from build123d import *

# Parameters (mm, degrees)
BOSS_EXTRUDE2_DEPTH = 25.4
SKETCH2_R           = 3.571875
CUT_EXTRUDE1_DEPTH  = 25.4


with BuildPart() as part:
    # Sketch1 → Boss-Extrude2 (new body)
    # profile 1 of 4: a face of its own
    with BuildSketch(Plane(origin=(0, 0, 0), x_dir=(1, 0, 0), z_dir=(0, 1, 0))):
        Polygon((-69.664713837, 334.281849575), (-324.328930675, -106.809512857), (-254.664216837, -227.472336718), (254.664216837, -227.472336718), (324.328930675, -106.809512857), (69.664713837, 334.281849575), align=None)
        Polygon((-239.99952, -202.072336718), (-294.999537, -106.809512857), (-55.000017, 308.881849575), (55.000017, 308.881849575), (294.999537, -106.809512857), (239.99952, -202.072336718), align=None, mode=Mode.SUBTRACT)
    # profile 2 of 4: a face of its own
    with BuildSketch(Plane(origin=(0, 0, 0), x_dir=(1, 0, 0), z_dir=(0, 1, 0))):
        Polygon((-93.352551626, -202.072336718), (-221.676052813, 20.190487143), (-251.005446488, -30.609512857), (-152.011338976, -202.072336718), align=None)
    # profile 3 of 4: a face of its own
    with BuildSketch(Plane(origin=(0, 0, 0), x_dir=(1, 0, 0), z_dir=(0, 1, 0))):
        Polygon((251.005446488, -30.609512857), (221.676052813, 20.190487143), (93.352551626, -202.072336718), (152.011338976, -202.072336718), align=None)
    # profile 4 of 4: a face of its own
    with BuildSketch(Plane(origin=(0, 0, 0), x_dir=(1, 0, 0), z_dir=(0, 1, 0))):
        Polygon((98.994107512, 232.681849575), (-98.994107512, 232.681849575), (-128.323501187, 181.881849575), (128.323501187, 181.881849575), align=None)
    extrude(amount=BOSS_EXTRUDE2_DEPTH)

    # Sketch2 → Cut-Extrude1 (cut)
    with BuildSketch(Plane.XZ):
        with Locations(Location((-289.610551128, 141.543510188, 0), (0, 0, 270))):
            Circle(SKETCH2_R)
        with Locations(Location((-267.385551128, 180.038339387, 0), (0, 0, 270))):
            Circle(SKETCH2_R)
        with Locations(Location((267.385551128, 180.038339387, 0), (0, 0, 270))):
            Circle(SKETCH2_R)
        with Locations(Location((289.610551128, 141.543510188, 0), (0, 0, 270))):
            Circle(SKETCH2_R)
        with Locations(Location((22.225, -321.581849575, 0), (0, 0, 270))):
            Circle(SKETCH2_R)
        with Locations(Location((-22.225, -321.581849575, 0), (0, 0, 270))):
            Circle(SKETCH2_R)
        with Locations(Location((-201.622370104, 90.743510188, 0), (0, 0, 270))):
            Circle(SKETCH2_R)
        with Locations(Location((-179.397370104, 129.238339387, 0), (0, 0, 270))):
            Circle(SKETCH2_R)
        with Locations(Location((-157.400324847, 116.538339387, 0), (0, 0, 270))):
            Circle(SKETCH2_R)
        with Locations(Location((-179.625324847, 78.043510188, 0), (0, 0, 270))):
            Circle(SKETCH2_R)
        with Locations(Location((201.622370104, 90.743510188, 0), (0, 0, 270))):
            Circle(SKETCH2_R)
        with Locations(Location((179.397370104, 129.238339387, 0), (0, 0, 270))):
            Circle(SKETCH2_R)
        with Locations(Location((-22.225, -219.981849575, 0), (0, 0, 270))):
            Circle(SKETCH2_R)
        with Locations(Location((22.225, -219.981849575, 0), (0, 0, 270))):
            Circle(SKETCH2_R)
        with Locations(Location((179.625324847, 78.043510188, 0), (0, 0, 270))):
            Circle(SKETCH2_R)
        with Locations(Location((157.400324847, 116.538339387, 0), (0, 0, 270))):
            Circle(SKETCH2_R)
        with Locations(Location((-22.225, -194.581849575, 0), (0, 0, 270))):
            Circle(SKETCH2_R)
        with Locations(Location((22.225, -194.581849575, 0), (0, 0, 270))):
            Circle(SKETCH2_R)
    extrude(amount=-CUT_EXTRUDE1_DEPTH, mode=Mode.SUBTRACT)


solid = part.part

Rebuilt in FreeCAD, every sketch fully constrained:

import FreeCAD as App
import Part
import Sketcher

V = App.Vector
Q = App.Units.Quantity


def add_polygon(sketch, points):
    """Adds a closed chain of lines whose ends are joined by coincident constraints."""
    first, n = sketch.GeometryCount, len(points)
    for a, b in zip(points, points[1:] + points[:1]):
        sketch.addGeometry(Part.LineSegment(App.Vector(*a, 0), App.Vector(*b, 0)), False)
    for i in range(n):
        sketch.addConstraint(Sketcher.Constraint("Coincident", first + i, 2, first + (i + 1) % n, 1))

doc = App.newDocument("Part")
body = doc.addObject("PartDesign::Body", "Body")

# Sketch on XZ plane
sketch1 = doc.addObject("Sketcher::SketchObject", "Sketch")
body.addObject(sketch1)
sketch1.AttachmentSupport = (doc.XZ_Plane, [""])
sketch1.MapMode = "FlatFace"
add_polygon(sketch1, [(-70, -334), (-324, 107), (-255, 227), (255, 227), (324, 107), (70, -334)])  # lines 0-5
add_polygon(sketch1, [(240, 202), (152, 202), (251, 31), (295, 107)])  # lines 6-9
add_polygon(sketch1, [(93, 202), (-93, 202), (-222, -20), (-128, -182), (128, -182), (222, -20)])  # lines 10-15
add_polygon(sketch1, [(-152, 202), (-240, 202), (-295, 107), (-251, 31)])  # lines 16-19
add_polygon(sketch1, [(55, -309), (99, -233), (-99, -233), (-55, -309)])  # lines 20-23
sketch1.addConstraint([
    Sketcher.Constraint("Horizontal", 2),
    Sketcher.Constraint("Horizontal", 5),
    Sketcher.Constraint("Horizontal", 6),
    Sketcher.Constraint("Horizontal", 10),
    Sketcher.Constraint("Horizontal", 13),
    Sketcher.Constraint("Horizontal", 16),
    Sketcher.Constraint("Horizontal", 21),
    Sketcher.Constraint("Horizontal", 23),
    Sketcher.Constraint("Symmetric", 0, 2, 3, 2, -2),
    Sketcher.Constraint("Symmetric", 11, 2, 14, 2, -2),
    Sketcher.Constraint("Symmetric", 9, 2, 16, 2, -2),
    Sketcher.Constraint("Symmetric", 8, 2, 17, 2, -2),
    Sketcher.Constraint("Symmetric", 7, 2, 18, 2, -2),
    Sketcher.Constraint("Parallel", 0, 3),
    Sketcher.Constraint("Parallel", 1, 4),
    Sketcher.Constraint("Parallel", 3, 7),
    Sketcher.Constraint("Parallel", 4, 8),
    Sketcher.Constraint("Parallel", 7, 9),
    Sketcher.Constraint("Parallel", 8, 11),
    Sketcher.Constraint("Parallel", 9, 12),
    Sketcher.Constraint("Parallel", 11, 14),
    Sketcher.Constraint("Parallel", 12, 15),
    Sketcher.Constraint("Parallel", 14, 17),
    Sketcher.Constraint("Parallel", 17, 19),
    Sketcher.Constraint("Parallel", 19, 20),
    Sketcher.Constraint("Parallel", 18, 22),
    Sketcher.Constraint("Horizontal", 3, 2, 8, 2),
    Sketcher.Constraint("Horizontal", 9, 2, 10, 2),
    Sketcher.Constraint("Equal", 18, 20),
    Sketcher.Constraint("Angle", 0, Q("120 deg")),
    Sketcher.Constraint("DistanceY", 6, 2, 2, 2, Q("1 in")),
    Sketcher.Constraint("DistanceY", 7, 2, 3, 2, Q("3 in")),
    Sketcher.Constraint("DistanceY", 11, 2, 0, 2, Q("5 in")),
    Sketcher.Constraint("DistanceY", 5, 2, 12, 2, Q("6 in")),
    Sketcher.Constraint("DistanceY", 20, 2, 13, 2, Q("2 in")),
    Sketcher.Constraint("DistanceX", -1, 1, 9, 2, Q("9.4488 in")),
    Sketcher.Constraint("DistanceX", 12, 2, -1, 1, 128.323501),
    Sketcher.Constraint("DistanceX", 6, 2, 8, 2, 142.988198),
    Sketcher.Constraint("DistanceX", 2, 1, 2, 2, 509.328434),
    Sketcher.Constraint("DistanceX", 5, 2, 5, 1, 139.329428),
    Sketcher.Constraint("DistanceX", 21, 2, 21, 1, 197.988215),
    Sketcher.Constraint("DistanceY", 4, 2, -1, 1, 334.28185),
    Sketcher.Constraint("DistanceX", 5, 2, 20, 2, 168.658821),
])
pad1 = doc.addObject("PartDesign::Pad", "Pad")
body.addObject(pad1)
pad1.Profile = sketch1
pad1.Length = Q("1 in")
pad1.Reversed = True

# Sketch on XZ plane
sketch2 = doc.addObject("Sketcher::SketchObject", "Sketch001")
body.addObject(sketch2)
sketch2.AttachmentSupport = (doc.XZ_Plane, [""])
sketch2.MapMode = "FlatFace"
sketch2.addGeometry([
    Part.Circle(V(-289.6, 141.5, 0), V(0, 0, 1), 3.6),  # 0
    Part.Circle(V(-267.4, 180, 0), V(0, 0, 1), 3.6),  # 1
    Part.Circle(V(267.4, 180, 0), V(0, 0, 1), 3.6),  # 2
    Part.Circle(V(289.6, 141.5, 0), V(0, 0, 1), 3.6),  # 3
    Part.Circle(V(22.2, -321.6, 0), V(0, 0, 1), 3.6),  # 4
    Part.Circle(V(-22.2, -321.6, 0), V(0, 0, 1), 3.6),  # 5
    Part.Circle(V(-201.6, 90.7, 0), V(0, 0, 1), 3.6),  # 6
    Part.Circle(V(-179.4, 129.2, 0), V(0, 0, 1), 3.6),  # 7
    Part.Circle(V(-157.4, 116.5, 0), V(0, 0, 1), 3.6),  # 8
    Part.Circle(V(-179.6, 78, 0), V(0, 0, 1), 3.6),  # 9
    Part.Circle(V(201.6, 90.7, 0), V(0, 0, 1), 3.6),  # 10
    Part.Circle(V(179.4, 129.2, 0), V(0, 0, 1), 3.6),  # 11
    Part.Circle(V(-22.2, -220, 0), V(0, 0, 1), 3.6),  # 12
    Part.Circle(V(22.2, -220, 0), V(0, 0, 1), 3.6),  # 13
    Part.Circle(V(179.6, 78, 0), V(0, 0, 1), 3.6),  # 14
    Part.Circle(V(157.4, 116.5, 0), V(0, 0, 1), 3.6),  # 15
    Part.Circle(V(-22.2, -194.6, 0), V(0, 0, 1), 3.6),  # 16
    Part.Circle(V(22.2, -194.6, 0), V(0, 0, 1), 3.6),  # 17
], False)
sketch2.addConstraint([
    Sketcher.Constraint("Equal", 0, 1),
    Sketcher.Constraint("Equal", 1, 2),
    Sketcher.Constraint("Equal", 2, 3),
    Sketcher.Constraint("Equal", 3, 4),
    Sketcher.Constraint("Equal", 4, 5),
    Sketcher.Constraint("Equal", 5, 6),
    Sketcher.Constraint("Equal", 6, 7),
    Sketcher.Constraint("Equal", 7, 8),
    Sketcher.Constraint("Equal", 8, 9),
    Sketcher.Constraint("Equal", 9, 10),
    Sketcher.Constraint("Equal", 10, 11),
    Sketcher.Constraint("Equal", 11, 12),
    Sketcher.Constraint("Equal", 12, 13),
    Sketcher.Constraint("Equal", 13, 14),
    Sketcher.Constraint("Equal", 14, 15),
    Sketcher.Constraint("Equal", 15, 16),
    Sketcher.Constraint("Equal", 16, 17),
    Sketcher.Constraint("Symmetric", 1, 3, 2, 3, -2),
    Sketcher.Constraint("Symmetric", 0, 3, 3, 3, -2),
    Sketcher.Constraint("Symmetric", 4, 3, 5, 3, -2),
    Sketcher.Constraint("Symmetric", 6, 3, 10, 3, -2),
    Sketcher.Constraint("Symmetric", 7, 3, 11, 3, -2),
    Sketcher.Constraint("Symmetric", 12, 3, 13, 3, -2),
    Sketcher.Constraint("Symmetric", 9, 3, 14, 3, -2),
    Sketcher.Constraint("Symmetric", 8, 3, 15, 3, -2),
    Sketcher.Constraint("Symmetric", 16, 3, 17, 3, -2),
    Sketcher.Constraint("Vertical", 5, 3, 12, 3),
    Sketcher.Constraint("Vertical", 12, 3, 16, 3),
    Sketcher.Constraint("Diameter", 0, Q("0.28125 in")),
    Sketcher.Constraint("DistanceY", 6, 3, 0, 3, Q("2 in")),
    Sketcher.Constraint("DistanceY", 7, 3, 1, 3, Q("2 in")),
    Sketcher.Constraint("DistanceY", 5, 3, 12, 3, Q("4 in")),
    Sketcher.Constraint("DistanceY", 12, 3, 16, 3, Q("1 in")),
    Sketcher.Constraint("DistanceY", 8, 3, 7, 3, Q("0.5 in")),
    Sketcher.Constraint("DistanceY", 9, 3, 6, 3, Q("0.5 in")),
    Sketcher.Constraint("DistanceX", 5, 3, 4, 3, Q("1.75 in")),
    Sketcher.Constraint("DistanceX", 0, 3, 1, 3, Q("0.875 in")),
    Sketcher.Constraint("DistanceX", 6, 3, 7, 3, Q("0.875 in")),
    Sketcher.Constraint("DistanceX", 9, 3, 8, 3, Q("0.875 in")),
    Sketcher.Constraint("DistanceX", 0, 3, -1, 1, 289.610551),
    Sketcher.Constraint("DistanceY", -1, 1, 0, 3, 141.54351),
    Sketcher.Constraint("DistanceY", -1, 1, 1, 3, 180.038339),
    Sketcher.Constraint("DistanceY", 4, 3, -1, 1, 321.58185),
    Sketcher.Constraint("DistanceX", 6, 3, -1, 1, 201.62237),
    Sketcher.Constraint("DistanceX", 8, 3, -1, 1, 157.400325),
])
pocket1 = doc.addObject("PartDesign::Pocket", "Pocket")
body.addObject(pocket1)
pocket1.Profile = sketch2
pocket1.Length = Q("1 in")

doc.recompute()
